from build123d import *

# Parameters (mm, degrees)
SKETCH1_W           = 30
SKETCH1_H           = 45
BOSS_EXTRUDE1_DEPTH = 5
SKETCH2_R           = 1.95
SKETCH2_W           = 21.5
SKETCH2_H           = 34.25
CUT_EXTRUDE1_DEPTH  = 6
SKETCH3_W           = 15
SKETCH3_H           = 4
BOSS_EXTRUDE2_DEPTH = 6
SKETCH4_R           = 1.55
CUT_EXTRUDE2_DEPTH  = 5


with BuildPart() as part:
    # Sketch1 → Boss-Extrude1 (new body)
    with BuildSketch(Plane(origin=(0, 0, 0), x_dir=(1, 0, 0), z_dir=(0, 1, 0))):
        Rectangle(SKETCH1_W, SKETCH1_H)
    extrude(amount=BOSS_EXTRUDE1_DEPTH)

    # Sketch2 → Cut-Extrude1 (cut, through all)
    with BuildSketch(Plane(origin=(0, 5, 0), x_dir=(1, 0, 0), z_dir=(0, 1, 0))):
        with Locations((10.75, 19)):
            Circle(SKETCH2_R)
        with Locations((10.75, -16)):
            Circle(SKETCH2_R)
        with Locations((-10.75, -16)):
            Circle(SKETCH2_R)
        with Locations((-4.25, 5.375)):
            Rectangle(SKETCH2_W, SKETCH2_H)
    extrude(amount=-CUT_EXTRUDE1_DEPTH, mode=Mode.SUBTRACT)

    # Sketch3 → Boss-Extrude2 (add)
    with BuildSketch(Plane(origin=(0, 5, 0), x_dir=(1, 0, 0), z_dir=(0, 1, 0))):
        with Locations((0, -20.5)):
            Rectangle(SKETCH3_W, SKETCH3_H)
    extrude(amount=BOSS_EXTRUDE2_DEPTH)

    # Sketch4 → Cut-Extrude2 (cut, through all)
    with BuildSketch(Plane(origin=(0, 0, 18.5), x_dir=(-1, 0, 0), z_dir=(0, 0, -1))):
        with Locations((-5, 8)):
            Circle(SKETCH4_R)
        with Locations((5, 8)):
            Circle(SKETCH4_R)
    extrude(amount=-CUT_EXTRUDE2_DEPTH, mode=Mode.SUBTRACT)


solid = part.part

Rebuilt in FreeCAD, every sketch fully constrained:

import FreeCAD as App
import Part
import Sketcher
from FreeCAD import Vector

doc = App.newDocument("Part")
params = doc.addObject("Spreadsheet::Sheet", "Params")
for row, (alias, value) in enumerate([
    ("sketch1_width", "30 mm"),
    ("sketch1_height", "45 mm"),
    ("pad1_length", "5 mm"),
    ("sketch2_diameter", "3.9 mm"),
    ("sketch2_width", "21.5 mm"),
    ("sketch2_height", "34.25 mm"),
    ("sketch3_width", "15 mm"),
    ("sketch3_height", "4 mm"),
    ("pad2_length", "6 mm"),
    ("sketch4_diameter", "3.1 mm"),
], start=1):
    params.set(f"A{row}", alias)
    params.set(f"B{row}", "=" + value)
    params.setAlias(f"B{row}", alias)

body = doc.addObject("PartDesign::Body", "Body")

# Sketch on XZ plane
sketch1 = body.newObject("Sketcher::SketchObject", "Sketch")
sketch1.AttachmentSupport = (doc.getObject("XZ_Plane"), [""])
sketch1.MapMode = "FlatFace"
sketch1.addGeometry([
    Part.LineSegment(Vector(-15, -22, 0), Vector(-15, 22, 0)),
    Part.LineSegment(Vector(-15, 22, 0), Vector(15, 22, 0)),
    Part.LineSegment(Vector(15, 22, 0), Vector(15, -22, 0)),
    Part.LineSegment(Vector(15, -22, 0), Vector(-15, -22, 0)),
], False)
sketch1.addConstraint([
    Sketcher.Constraint("Coincident", 0, 2, 1, 1),
    Sketcher.Constraint("Coincident", 1, 2, 2, 1),
    Sketcher.Constraint("Coincident", 2, 2, 3, 1),
    Sketcher.Constraint("Coincident", 3, 2, 0, 1),
    Sketcher.Constraint("Vertical", 0),
    Sketcher.Constraint("Horizontal", 1),
    Sketcher.Constraint("Vertical", 2),
    Sketcher.Constraint("Horizontal", 3),
    Sketcher.Constraint("Symmetric", 0, 2, 2, 2, -1, 1),
    Sketcher.Constraint("DistanceX", 1, 1, 1, 2, 30.0),
    Sketcher.Constraint("DistanceY", 0, 1, 0, 2, 45.0),
])
sketch1.setExpression("Constraints[9]", "Params.sketch1_width")
sketch1.setExpression("Constraints[10]", "Params.sketch1_height")
pad1 = body.newObject("PartDesign::Pad", "Pad")
pad1.Profile = sketch1
pad1.setExpression("Length", "Params.pad1_length")
pad1.Reversed = True

# Sketch on XZ plane
sketch2 = body.newObject("Sketcher::SketchObject", "Sketch001")
sketch2.AttachmentSupport = (doc.getObject("XZ_Plane"), [""])
sketch2.MapMode = "FlatFace"
sketch2.AttachmentOffset = App.Placement(Vector(0, 0, -5), App.Rotation())
sketch2.addGeometry([
    Part.Circle(Vector(10.8, -19, 0), Vector(0, 0, 1), 1.9),  # 0
    Part.Circle(Vector(10.8, 16, 0), Vector(0, 0, 1), 1.9),  # 1
    Part.Circle(Vector(-10.8, 16, 0), Vector(0, 0, 1), 1.9),  # 2
    Part.LineSegment(Vector(-15, -22.5, 0), Vector(-15, 11.8, 0)),  # 3
    Part.LineSegment(Vector(-15, 11.8, 0), Vector(6.5, 11.8, 0)),  # 4
    Part.LineSegment(Vector(6.5, 11.8, 0), Vector(6.5, -22.5, 0)),  # 5
    Part.LineSegment(Vector(6.5, -22.5, 0), Vector(-15, -22.5, 0)),  # 6
], False)
sketch2.addConstraint([
    Sketcher.Constraint("Coincident", 3, 2, 4, 1),
    Sketcher.Constraint("Coincident", 4, 2, 5, 1),
    Sketcher.Constraint("Coincident", 5, 2, 6, 1),
    Sketcher.Constraint("Coincident", 6, 2, 3, 1),
    Sketcher.Constraint("Vertical", 3),
    Sketcher.Constraint("Horizontal", 4),
    Sketcher.Constraint("Vertical", 5),
    Sketcher.Constraint("Horizontal", 6),
    Sketcher.Constraint("Equal", 0, 1),
    Sketcher.Constraint("Equal", 1, 2),
    Sketcher.Constraint("Symmetric", 1, 3, 2, 3, -2),
    Sketcher.Constraint("Vertical", 0, 3, 1, 3),
    Sketcher.Constraint("Diameter", 0, 3.9),
    Sketcher.Constraint("DistanceX", 4, 1, 4, 2, 21.5),
    Sketcher.Constraint("DistanceY", 0, 3, -1, 1, 19.0),
    Sketcher.Constraint("DistanceY", -1, 1, 1, 3, 16.0),
    Sketcher.Constraint("DistanceX", 3, 2, -1, 1, 15.0),
    Sketcher.Constraint("DistanceY", 3, 1, 3, 2, 34.25),
    Sketcher.Constraint("DistanceY", 5, 2, -1, 1, 22.5),
    Sketcher.Constraint("DistanceX", 2, 3, 1, 3, 21.5),
])
sketch2.setExpression("Constraints[12]", "Params.sketch2_diameter")
sketch2.setExpression("Constraints[13]", "Params.sketch2_width")
sketch2.setExpression("Constraints[17]", "Params.sketch2_height")
pocket1 = body.newObject("PartDesign::Pocket", "Pocket")
pocket1.Profile = sketch2
pocket1.Type = "ThroughAll"
pocket1.Reversed = True

# Sketch on XZ plane
sketch3 = body.newObject("Sketcher::SketchObject", "Sketch002")
sketch3.AttachmentSupport = (doc.getObject("XZ_Plane"), [""])
sketch3.MapMode = "FlatFace"
sketch3.AttachmentOffset = App.Placement(Vector(0, 0, -5), App.Rotation())
sketch3.addGeometry([
    Part.LineSegment(Vector(-7.5, 18.5, 0), Vector(-7.5, 22.5, 0)),
    Part.LineSegment(Vector(-7.5, 22.5, 0), Vector(7.5, 22.5, 0)),
    Part.LineSegment(Vector(7.5, 22.5, 0), Vector(7.5, 18.5, 0)),
    Part.LineSegment(Vector(7.5, 18.5, 0), Vector(-7.5, 18.5, 0)),
], False)
sketch3.addConstraint([
    Sketcher.Constraint("Coincident", 0, 2, 1, 1),
    Sketcher.Constraint("Coincident", 1, 2, 2, 1),
    Sketcher.Constraint("Coincident", 2, 2, 3, 1),
    Sketcher.Constraint("Coincident", 3, 2, 0, 1),
    Sketcher.Constraint("Vertical", 0),
    Sketcher.Constraint("Horizontal", 1),
    Sketcher.Constraint("Vertical", 2),
    Sketcher.Constraint("Horizontal", 3),
    Sketcher.Constraint("DistanceX", 1, 1, 1, 2, 15.0),
    Sketcher.Constraint("DistanceY", 0, 1, 0, 2, 4.0),
    Sketcher.Constraint("DistanceX", 0, 2, -1, 1, 7.5),
    Sketcher.Constraint("DistanceY", -1, 1, 0, 2, 22.5),
])
sketch3.setExpression("Constraints[8]", "Params.sketch3_width")
sketch3.setExpression("Constraints[9]", "Params.sketch3_height")
pad2 = body.newObject("PartDesign::Pad", "Pad001")
pad2.Profile = sketch3
pad2.setExpression("Length", "Params.pad2_length")
pad2.Reversed = True

# Sketch on XY plane
sketch4 = body.newObject("Sketcher::SketchObject", "Sketch003")
sketch4.AttachmentSupport = (doc.getObject("XY_Plane"), [""])
sketch4.MapMode = "FlatFace"
sketch4.AttachmentOffset = App.Placement(Vector(0, 0, 18.5), App.Rotation())
sketch4.addGeometry([
    Part.Circle(Vector(5, 8, 0), Vector(0, 0, 1), 1.6),
    Part.Circle(Vector(-5, 8, 0), Vector(0, 0, 1), 1.6),
], False)
sketch4.addConstraint([
    Sketcher.Constraint("Equal", 0, 1),
    Sketcher.Constraint("Symmetric", 0, 3, 1, 3, -2),
    Sketcher.Constraint("Diameter", 0, 3.1),
    Sketcher.Constraint("DistanceX", -1, 1, 0, 3, 5.0),
    Sketcher.Constraint("DistanceY", -1, 1, 0, 3, 8.0),
])
sketch4.setExpression("Constraints[2]", "Params.sketch4_diameter")
pocket2 = body.newObject("PartDesign::Pocket", "Pocket001")
pocket2.Profile = sketch4
pocket2.Type = "ThroughAll"
pocket2.Reversed = True

doc.recompute()
